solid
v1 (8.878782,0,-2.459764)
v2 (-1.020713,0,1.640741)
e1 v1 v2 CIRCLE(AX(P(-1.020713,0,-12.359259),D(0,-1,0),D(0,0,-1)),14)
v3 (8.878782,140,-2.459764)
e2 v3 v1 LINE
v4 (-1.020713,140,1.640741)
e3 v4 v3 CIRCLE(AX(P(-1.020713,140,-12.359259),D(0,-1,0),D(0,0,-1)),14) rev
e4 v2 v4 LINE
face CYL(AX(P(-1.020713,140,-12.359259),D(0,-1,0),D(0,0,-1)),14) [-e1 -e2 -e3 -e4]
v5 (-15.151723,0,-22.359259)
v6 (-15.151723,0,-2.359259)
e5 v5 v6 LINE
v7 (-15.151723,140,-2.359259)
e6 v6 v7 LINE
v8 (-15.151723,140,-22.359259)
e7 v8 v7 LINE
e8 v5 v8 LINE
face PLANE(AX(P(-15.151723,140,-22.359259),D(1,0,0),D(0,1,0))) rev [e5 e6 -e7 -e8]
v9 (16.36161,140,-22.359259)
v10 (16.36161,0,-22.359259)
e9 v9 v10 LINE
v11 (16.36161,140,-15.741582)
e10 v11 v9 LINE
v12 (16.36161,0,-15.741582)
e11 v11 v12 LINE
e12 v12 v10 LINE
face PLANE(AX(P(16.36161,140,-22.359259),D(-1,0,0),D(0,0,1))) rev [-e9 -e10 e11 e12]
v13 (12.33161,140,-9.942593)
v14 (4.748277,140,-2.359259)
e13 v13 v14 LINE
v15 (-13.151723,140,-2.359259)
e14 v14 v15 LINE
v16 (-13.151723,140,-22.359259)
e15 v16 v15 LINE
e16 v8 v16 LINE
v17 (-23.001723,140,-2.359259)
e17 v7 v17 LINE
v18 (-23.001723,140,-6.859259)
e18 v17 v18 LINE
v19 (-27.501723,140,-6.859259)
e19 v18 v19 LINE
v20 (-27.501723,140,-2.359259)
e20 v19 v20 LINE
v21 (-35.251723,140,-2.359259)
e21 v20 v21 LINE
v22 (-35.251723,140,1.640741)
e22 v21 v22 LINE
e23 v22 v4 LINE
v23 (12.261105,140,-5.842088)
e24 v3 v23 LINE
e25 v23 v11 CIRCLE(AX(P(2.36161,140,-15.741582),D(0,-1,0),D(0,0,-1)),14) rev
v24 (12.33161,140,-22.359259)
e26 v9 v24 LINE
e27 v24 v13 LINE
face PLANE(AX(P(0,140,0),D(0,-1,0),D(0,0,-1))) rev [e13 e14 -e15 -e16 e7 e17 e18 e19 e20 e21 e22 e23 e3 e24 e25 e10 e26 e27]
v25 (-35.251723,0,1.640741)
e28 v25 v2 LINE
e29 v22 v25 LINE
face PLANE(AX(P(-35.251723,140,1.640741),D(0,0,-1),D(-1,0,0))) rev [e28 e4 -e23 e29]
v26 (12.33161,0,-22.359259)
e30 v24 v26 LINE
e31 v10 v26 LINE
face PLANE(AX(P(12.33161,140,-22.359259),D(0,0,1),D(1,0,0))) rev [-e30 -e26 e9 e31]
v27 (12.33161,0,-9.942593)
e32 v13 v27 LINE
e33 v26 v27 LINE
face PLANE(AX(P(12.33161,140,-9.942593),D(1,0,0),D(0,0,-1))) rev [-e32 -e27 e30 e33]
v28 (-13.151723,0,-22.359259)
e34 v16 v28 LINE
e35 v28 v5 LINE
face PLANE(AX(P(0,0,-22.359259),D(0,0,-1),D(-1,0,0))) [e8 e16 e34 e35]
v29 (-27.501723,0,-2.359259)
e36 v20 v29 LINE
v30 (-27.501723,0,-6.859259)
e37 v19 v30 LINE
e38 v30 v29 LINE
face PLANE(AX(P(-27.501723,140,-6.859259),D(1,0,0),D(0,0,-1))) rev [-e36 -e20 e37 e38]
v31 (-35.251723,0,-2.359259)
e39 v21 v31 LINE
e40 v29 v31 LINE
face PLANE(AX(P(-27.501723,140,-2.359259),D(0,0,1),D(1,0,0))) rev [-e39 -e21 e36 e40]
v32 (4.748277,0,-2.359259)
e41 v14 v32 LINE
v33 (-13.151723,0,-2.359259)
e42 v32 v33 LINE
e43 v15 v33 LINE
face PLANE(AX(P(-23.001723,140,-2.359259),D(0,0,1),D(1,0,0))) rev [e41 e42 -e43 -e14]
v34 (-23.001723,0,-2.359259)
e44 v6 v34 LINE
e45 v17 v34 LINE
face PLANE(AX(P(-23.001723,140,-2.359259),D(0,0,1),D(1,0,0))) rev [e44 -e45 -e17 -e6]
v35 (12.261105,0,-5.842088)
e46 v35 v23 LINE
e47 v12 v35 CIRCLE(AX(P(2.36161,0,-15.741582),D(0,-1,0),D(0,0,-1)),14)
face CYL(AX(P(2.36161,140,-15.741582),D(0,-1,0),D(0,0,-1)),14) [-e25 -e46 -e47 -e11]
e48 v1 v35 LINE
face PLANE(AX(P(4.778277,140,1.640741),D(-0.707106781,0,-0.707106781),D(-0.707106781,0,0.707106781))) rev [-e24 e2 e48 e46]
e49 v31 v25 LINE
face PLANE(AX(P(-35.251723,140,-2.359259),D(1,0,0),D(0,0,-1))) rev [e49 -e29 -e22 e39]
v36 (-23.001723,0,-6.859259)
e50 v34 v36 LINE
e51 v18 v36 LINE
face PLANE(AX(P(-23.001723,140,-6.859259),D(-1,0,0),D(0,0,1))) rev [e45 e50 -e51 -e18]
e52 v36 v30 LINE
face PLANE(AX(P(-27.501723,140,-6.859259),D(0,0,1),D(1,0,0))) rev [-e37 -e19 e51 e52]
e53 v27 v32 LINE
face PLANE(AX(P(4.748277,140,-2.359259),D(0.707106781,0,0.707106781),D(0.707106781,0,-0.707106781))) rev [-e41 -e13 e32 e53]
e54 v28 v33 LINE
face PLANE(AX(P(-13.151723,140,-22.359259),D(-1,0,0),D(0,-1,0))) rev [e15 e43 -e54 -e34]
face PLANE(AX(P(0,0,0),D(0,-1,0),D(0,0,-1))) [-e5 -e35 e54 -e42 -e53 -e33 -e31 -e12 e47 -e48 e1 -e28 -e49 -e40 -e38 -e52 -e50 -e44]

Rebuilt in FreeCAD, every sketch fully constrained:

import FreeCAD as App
import Part
import Sketcher
Q = App.Units.Quantity


def edges_at(feature, points):
    """Names of the edges that pass closest to the given points."""
    edges = feature.Shape.Edges
    near = lambda p: min(range(len(edges)), key=lambda i: edges[i].distToShape(Part.Vertex(*p))[0])
    return sorted({f"Edge{near(p) + 1}" for p in points})


def add_polygon(sketch, points):
    """Adds a closed chain of lines whose ends are joined by coincident constraints."""
    first, n = sketch.GeometryCount, len(points)
    for a, b in zip(points, points[1:] + points[:1]):
        sketch.addGeometry(Part.LineSegment(App.Vector(*a, 0), App.Vector(*b, 0)), False)
    for i in range(n):
        sketch.addConstraint(Sketcher.Constraint("Coincident", first + i, 2, first + (i + 1) % n, 1))

doc = App.newDocument("Part")
body = doc.addObject("PartDesign::Body", "Body")

# Sketch on XZ plane
sketch1 = body.newObject("Sketcher::SketchObject", "Sketch")
sketch1.AttachmentSupport = (doc.getObject("XZ_Plane"), [""])
sketch1.MapMode = "FlatFace"
add_polygon(sketch1, [(-23.001723, -6.859259), (-27.501723, -6.859259), (-27.501723, -2.359259), (-35.251723, -2.359259), (-35.251723, 1.640741), (4.778277, 1.640741), (16.36161, -9.942593), (16.36161, -22.359259), (12.33161, -22.359259), (12.33161, -9.942593), (4.748277, -2.359259), (-23.001723, -2.359259)])  # lines 0-11
sketch1.addConstraint([
    Sketcher.Constraint("Horizontal", 0),
    Sketcher.Constraint("Vertical", 1),
    Sketcher.Constraint("Horizontal", 2),
    Sketcher.Constraint("Vertical", 3),
    Sketcher.Constraint("Horizontal", 4),
    Sketcher.Constraint("Vertical", 6),
    Sketcher.Constraint("Horizontal", 7),
    Sketcher.Constraint("Vertical", 8),
    Sketcher.Constraint("Horizontal", 10),
    Sketcher.Constraint("Vertical", 11),
    Sketcher.Constraint("Parallel", 5, 9),
    Sketcher.Constraint("Horizontal", 5, 2, 8, 2),
    Sketcher.Constraint("Horizontal", 2, 2, 9, 2),
    Sketcher.Constraint("Equal", 0, 1),
    Sketcher.Constraint("DistanceY", 3, 1, 3, 2, 4.0),
    Sketcher.Constraint("Angle", 5, Q("-45 deg")),
    Sketcher.Constraint("DistanceX", 0, 2, 0, 1, 4.5),
    Sketcher.Constraint("DistanceY", 6, 2, 4, 2, 24.0),
    Sketcher.Constraint("DistanceX", 2, 2, 2, 1, 7.75),
    Sketcher.Constraint("DistanceX", 4, 1, 4, 2, 40.03),
    Sketcher.Constraint("DistanceX", 7, 2, 7, 1, 4.03),
    Sketcher.Constraint("DistanceY", 6, 2, 6, 1, 12.416667),
    Sketcher.Constraint("DistanceY", 0, 2, -1, 1, 6.859259),
    Sketcher.Constraint("DistanceX", -1, 1, 5, 2, 16.36161),
])
pad1 = body.newObject("PartDesign::Pad", "Pad")
pad1.Profile = sketch1
pad1.Length = 140
pad1.Reversed = True
doc.recompute()

fillet = body.newObject("PartDesign::Fillet", "Fillet")
fillet.Base = (pad1, edges_at(pad1, [(16.362, 70, -9.943), (4.778, 70, 1.641)]))
fillet.Radius = 14

# Sketch on XY plane
sketch2 = body.newObject("Sketcher::SketchObject", "Sketch001")
sketch2.AttachmentSupport = (doc.getObject("XY_Plane"), [""])
sketch2.MapMode = "FlatFace"
sketch2.AttachmentOffset = App.Placement(App.Vector(0, 0, -2.359259), App.Rotation())
add_polygon(sketch2, [(-13.151723, 140), (-13.151723, 0), (-15.151723, 0), (-15.151723, 140)])  # lines 0-3
sketch2.addConstraint([
    Sketcher.Constraint("Vertical", 0),
    Sketcher.Constraint("Horizontal", 1),
    Sketcher.Constraint("Vertical", 2),
    Sketcher.Constraint("Horizontal", 3),
    Sketcher.Constraint("PointOnObject", 0, 2, -1),
    Sketcher.Constraint("DistanceX", 1, 2, 1, 1, 2.0),
    Sketcher.Constraint("DistanceY", 0, 2, 0, 1, 140.0),
    Sketcher.Constraint("DistanceX", 0, 2, -1, 1, 13.151723),
])
pad2 = body.newObject("PartDesign::Pad", "Pad001")
pad2.Profile = sketch2
pad2.Length = 20
pad2.Reversed = True

doc.recompute()
